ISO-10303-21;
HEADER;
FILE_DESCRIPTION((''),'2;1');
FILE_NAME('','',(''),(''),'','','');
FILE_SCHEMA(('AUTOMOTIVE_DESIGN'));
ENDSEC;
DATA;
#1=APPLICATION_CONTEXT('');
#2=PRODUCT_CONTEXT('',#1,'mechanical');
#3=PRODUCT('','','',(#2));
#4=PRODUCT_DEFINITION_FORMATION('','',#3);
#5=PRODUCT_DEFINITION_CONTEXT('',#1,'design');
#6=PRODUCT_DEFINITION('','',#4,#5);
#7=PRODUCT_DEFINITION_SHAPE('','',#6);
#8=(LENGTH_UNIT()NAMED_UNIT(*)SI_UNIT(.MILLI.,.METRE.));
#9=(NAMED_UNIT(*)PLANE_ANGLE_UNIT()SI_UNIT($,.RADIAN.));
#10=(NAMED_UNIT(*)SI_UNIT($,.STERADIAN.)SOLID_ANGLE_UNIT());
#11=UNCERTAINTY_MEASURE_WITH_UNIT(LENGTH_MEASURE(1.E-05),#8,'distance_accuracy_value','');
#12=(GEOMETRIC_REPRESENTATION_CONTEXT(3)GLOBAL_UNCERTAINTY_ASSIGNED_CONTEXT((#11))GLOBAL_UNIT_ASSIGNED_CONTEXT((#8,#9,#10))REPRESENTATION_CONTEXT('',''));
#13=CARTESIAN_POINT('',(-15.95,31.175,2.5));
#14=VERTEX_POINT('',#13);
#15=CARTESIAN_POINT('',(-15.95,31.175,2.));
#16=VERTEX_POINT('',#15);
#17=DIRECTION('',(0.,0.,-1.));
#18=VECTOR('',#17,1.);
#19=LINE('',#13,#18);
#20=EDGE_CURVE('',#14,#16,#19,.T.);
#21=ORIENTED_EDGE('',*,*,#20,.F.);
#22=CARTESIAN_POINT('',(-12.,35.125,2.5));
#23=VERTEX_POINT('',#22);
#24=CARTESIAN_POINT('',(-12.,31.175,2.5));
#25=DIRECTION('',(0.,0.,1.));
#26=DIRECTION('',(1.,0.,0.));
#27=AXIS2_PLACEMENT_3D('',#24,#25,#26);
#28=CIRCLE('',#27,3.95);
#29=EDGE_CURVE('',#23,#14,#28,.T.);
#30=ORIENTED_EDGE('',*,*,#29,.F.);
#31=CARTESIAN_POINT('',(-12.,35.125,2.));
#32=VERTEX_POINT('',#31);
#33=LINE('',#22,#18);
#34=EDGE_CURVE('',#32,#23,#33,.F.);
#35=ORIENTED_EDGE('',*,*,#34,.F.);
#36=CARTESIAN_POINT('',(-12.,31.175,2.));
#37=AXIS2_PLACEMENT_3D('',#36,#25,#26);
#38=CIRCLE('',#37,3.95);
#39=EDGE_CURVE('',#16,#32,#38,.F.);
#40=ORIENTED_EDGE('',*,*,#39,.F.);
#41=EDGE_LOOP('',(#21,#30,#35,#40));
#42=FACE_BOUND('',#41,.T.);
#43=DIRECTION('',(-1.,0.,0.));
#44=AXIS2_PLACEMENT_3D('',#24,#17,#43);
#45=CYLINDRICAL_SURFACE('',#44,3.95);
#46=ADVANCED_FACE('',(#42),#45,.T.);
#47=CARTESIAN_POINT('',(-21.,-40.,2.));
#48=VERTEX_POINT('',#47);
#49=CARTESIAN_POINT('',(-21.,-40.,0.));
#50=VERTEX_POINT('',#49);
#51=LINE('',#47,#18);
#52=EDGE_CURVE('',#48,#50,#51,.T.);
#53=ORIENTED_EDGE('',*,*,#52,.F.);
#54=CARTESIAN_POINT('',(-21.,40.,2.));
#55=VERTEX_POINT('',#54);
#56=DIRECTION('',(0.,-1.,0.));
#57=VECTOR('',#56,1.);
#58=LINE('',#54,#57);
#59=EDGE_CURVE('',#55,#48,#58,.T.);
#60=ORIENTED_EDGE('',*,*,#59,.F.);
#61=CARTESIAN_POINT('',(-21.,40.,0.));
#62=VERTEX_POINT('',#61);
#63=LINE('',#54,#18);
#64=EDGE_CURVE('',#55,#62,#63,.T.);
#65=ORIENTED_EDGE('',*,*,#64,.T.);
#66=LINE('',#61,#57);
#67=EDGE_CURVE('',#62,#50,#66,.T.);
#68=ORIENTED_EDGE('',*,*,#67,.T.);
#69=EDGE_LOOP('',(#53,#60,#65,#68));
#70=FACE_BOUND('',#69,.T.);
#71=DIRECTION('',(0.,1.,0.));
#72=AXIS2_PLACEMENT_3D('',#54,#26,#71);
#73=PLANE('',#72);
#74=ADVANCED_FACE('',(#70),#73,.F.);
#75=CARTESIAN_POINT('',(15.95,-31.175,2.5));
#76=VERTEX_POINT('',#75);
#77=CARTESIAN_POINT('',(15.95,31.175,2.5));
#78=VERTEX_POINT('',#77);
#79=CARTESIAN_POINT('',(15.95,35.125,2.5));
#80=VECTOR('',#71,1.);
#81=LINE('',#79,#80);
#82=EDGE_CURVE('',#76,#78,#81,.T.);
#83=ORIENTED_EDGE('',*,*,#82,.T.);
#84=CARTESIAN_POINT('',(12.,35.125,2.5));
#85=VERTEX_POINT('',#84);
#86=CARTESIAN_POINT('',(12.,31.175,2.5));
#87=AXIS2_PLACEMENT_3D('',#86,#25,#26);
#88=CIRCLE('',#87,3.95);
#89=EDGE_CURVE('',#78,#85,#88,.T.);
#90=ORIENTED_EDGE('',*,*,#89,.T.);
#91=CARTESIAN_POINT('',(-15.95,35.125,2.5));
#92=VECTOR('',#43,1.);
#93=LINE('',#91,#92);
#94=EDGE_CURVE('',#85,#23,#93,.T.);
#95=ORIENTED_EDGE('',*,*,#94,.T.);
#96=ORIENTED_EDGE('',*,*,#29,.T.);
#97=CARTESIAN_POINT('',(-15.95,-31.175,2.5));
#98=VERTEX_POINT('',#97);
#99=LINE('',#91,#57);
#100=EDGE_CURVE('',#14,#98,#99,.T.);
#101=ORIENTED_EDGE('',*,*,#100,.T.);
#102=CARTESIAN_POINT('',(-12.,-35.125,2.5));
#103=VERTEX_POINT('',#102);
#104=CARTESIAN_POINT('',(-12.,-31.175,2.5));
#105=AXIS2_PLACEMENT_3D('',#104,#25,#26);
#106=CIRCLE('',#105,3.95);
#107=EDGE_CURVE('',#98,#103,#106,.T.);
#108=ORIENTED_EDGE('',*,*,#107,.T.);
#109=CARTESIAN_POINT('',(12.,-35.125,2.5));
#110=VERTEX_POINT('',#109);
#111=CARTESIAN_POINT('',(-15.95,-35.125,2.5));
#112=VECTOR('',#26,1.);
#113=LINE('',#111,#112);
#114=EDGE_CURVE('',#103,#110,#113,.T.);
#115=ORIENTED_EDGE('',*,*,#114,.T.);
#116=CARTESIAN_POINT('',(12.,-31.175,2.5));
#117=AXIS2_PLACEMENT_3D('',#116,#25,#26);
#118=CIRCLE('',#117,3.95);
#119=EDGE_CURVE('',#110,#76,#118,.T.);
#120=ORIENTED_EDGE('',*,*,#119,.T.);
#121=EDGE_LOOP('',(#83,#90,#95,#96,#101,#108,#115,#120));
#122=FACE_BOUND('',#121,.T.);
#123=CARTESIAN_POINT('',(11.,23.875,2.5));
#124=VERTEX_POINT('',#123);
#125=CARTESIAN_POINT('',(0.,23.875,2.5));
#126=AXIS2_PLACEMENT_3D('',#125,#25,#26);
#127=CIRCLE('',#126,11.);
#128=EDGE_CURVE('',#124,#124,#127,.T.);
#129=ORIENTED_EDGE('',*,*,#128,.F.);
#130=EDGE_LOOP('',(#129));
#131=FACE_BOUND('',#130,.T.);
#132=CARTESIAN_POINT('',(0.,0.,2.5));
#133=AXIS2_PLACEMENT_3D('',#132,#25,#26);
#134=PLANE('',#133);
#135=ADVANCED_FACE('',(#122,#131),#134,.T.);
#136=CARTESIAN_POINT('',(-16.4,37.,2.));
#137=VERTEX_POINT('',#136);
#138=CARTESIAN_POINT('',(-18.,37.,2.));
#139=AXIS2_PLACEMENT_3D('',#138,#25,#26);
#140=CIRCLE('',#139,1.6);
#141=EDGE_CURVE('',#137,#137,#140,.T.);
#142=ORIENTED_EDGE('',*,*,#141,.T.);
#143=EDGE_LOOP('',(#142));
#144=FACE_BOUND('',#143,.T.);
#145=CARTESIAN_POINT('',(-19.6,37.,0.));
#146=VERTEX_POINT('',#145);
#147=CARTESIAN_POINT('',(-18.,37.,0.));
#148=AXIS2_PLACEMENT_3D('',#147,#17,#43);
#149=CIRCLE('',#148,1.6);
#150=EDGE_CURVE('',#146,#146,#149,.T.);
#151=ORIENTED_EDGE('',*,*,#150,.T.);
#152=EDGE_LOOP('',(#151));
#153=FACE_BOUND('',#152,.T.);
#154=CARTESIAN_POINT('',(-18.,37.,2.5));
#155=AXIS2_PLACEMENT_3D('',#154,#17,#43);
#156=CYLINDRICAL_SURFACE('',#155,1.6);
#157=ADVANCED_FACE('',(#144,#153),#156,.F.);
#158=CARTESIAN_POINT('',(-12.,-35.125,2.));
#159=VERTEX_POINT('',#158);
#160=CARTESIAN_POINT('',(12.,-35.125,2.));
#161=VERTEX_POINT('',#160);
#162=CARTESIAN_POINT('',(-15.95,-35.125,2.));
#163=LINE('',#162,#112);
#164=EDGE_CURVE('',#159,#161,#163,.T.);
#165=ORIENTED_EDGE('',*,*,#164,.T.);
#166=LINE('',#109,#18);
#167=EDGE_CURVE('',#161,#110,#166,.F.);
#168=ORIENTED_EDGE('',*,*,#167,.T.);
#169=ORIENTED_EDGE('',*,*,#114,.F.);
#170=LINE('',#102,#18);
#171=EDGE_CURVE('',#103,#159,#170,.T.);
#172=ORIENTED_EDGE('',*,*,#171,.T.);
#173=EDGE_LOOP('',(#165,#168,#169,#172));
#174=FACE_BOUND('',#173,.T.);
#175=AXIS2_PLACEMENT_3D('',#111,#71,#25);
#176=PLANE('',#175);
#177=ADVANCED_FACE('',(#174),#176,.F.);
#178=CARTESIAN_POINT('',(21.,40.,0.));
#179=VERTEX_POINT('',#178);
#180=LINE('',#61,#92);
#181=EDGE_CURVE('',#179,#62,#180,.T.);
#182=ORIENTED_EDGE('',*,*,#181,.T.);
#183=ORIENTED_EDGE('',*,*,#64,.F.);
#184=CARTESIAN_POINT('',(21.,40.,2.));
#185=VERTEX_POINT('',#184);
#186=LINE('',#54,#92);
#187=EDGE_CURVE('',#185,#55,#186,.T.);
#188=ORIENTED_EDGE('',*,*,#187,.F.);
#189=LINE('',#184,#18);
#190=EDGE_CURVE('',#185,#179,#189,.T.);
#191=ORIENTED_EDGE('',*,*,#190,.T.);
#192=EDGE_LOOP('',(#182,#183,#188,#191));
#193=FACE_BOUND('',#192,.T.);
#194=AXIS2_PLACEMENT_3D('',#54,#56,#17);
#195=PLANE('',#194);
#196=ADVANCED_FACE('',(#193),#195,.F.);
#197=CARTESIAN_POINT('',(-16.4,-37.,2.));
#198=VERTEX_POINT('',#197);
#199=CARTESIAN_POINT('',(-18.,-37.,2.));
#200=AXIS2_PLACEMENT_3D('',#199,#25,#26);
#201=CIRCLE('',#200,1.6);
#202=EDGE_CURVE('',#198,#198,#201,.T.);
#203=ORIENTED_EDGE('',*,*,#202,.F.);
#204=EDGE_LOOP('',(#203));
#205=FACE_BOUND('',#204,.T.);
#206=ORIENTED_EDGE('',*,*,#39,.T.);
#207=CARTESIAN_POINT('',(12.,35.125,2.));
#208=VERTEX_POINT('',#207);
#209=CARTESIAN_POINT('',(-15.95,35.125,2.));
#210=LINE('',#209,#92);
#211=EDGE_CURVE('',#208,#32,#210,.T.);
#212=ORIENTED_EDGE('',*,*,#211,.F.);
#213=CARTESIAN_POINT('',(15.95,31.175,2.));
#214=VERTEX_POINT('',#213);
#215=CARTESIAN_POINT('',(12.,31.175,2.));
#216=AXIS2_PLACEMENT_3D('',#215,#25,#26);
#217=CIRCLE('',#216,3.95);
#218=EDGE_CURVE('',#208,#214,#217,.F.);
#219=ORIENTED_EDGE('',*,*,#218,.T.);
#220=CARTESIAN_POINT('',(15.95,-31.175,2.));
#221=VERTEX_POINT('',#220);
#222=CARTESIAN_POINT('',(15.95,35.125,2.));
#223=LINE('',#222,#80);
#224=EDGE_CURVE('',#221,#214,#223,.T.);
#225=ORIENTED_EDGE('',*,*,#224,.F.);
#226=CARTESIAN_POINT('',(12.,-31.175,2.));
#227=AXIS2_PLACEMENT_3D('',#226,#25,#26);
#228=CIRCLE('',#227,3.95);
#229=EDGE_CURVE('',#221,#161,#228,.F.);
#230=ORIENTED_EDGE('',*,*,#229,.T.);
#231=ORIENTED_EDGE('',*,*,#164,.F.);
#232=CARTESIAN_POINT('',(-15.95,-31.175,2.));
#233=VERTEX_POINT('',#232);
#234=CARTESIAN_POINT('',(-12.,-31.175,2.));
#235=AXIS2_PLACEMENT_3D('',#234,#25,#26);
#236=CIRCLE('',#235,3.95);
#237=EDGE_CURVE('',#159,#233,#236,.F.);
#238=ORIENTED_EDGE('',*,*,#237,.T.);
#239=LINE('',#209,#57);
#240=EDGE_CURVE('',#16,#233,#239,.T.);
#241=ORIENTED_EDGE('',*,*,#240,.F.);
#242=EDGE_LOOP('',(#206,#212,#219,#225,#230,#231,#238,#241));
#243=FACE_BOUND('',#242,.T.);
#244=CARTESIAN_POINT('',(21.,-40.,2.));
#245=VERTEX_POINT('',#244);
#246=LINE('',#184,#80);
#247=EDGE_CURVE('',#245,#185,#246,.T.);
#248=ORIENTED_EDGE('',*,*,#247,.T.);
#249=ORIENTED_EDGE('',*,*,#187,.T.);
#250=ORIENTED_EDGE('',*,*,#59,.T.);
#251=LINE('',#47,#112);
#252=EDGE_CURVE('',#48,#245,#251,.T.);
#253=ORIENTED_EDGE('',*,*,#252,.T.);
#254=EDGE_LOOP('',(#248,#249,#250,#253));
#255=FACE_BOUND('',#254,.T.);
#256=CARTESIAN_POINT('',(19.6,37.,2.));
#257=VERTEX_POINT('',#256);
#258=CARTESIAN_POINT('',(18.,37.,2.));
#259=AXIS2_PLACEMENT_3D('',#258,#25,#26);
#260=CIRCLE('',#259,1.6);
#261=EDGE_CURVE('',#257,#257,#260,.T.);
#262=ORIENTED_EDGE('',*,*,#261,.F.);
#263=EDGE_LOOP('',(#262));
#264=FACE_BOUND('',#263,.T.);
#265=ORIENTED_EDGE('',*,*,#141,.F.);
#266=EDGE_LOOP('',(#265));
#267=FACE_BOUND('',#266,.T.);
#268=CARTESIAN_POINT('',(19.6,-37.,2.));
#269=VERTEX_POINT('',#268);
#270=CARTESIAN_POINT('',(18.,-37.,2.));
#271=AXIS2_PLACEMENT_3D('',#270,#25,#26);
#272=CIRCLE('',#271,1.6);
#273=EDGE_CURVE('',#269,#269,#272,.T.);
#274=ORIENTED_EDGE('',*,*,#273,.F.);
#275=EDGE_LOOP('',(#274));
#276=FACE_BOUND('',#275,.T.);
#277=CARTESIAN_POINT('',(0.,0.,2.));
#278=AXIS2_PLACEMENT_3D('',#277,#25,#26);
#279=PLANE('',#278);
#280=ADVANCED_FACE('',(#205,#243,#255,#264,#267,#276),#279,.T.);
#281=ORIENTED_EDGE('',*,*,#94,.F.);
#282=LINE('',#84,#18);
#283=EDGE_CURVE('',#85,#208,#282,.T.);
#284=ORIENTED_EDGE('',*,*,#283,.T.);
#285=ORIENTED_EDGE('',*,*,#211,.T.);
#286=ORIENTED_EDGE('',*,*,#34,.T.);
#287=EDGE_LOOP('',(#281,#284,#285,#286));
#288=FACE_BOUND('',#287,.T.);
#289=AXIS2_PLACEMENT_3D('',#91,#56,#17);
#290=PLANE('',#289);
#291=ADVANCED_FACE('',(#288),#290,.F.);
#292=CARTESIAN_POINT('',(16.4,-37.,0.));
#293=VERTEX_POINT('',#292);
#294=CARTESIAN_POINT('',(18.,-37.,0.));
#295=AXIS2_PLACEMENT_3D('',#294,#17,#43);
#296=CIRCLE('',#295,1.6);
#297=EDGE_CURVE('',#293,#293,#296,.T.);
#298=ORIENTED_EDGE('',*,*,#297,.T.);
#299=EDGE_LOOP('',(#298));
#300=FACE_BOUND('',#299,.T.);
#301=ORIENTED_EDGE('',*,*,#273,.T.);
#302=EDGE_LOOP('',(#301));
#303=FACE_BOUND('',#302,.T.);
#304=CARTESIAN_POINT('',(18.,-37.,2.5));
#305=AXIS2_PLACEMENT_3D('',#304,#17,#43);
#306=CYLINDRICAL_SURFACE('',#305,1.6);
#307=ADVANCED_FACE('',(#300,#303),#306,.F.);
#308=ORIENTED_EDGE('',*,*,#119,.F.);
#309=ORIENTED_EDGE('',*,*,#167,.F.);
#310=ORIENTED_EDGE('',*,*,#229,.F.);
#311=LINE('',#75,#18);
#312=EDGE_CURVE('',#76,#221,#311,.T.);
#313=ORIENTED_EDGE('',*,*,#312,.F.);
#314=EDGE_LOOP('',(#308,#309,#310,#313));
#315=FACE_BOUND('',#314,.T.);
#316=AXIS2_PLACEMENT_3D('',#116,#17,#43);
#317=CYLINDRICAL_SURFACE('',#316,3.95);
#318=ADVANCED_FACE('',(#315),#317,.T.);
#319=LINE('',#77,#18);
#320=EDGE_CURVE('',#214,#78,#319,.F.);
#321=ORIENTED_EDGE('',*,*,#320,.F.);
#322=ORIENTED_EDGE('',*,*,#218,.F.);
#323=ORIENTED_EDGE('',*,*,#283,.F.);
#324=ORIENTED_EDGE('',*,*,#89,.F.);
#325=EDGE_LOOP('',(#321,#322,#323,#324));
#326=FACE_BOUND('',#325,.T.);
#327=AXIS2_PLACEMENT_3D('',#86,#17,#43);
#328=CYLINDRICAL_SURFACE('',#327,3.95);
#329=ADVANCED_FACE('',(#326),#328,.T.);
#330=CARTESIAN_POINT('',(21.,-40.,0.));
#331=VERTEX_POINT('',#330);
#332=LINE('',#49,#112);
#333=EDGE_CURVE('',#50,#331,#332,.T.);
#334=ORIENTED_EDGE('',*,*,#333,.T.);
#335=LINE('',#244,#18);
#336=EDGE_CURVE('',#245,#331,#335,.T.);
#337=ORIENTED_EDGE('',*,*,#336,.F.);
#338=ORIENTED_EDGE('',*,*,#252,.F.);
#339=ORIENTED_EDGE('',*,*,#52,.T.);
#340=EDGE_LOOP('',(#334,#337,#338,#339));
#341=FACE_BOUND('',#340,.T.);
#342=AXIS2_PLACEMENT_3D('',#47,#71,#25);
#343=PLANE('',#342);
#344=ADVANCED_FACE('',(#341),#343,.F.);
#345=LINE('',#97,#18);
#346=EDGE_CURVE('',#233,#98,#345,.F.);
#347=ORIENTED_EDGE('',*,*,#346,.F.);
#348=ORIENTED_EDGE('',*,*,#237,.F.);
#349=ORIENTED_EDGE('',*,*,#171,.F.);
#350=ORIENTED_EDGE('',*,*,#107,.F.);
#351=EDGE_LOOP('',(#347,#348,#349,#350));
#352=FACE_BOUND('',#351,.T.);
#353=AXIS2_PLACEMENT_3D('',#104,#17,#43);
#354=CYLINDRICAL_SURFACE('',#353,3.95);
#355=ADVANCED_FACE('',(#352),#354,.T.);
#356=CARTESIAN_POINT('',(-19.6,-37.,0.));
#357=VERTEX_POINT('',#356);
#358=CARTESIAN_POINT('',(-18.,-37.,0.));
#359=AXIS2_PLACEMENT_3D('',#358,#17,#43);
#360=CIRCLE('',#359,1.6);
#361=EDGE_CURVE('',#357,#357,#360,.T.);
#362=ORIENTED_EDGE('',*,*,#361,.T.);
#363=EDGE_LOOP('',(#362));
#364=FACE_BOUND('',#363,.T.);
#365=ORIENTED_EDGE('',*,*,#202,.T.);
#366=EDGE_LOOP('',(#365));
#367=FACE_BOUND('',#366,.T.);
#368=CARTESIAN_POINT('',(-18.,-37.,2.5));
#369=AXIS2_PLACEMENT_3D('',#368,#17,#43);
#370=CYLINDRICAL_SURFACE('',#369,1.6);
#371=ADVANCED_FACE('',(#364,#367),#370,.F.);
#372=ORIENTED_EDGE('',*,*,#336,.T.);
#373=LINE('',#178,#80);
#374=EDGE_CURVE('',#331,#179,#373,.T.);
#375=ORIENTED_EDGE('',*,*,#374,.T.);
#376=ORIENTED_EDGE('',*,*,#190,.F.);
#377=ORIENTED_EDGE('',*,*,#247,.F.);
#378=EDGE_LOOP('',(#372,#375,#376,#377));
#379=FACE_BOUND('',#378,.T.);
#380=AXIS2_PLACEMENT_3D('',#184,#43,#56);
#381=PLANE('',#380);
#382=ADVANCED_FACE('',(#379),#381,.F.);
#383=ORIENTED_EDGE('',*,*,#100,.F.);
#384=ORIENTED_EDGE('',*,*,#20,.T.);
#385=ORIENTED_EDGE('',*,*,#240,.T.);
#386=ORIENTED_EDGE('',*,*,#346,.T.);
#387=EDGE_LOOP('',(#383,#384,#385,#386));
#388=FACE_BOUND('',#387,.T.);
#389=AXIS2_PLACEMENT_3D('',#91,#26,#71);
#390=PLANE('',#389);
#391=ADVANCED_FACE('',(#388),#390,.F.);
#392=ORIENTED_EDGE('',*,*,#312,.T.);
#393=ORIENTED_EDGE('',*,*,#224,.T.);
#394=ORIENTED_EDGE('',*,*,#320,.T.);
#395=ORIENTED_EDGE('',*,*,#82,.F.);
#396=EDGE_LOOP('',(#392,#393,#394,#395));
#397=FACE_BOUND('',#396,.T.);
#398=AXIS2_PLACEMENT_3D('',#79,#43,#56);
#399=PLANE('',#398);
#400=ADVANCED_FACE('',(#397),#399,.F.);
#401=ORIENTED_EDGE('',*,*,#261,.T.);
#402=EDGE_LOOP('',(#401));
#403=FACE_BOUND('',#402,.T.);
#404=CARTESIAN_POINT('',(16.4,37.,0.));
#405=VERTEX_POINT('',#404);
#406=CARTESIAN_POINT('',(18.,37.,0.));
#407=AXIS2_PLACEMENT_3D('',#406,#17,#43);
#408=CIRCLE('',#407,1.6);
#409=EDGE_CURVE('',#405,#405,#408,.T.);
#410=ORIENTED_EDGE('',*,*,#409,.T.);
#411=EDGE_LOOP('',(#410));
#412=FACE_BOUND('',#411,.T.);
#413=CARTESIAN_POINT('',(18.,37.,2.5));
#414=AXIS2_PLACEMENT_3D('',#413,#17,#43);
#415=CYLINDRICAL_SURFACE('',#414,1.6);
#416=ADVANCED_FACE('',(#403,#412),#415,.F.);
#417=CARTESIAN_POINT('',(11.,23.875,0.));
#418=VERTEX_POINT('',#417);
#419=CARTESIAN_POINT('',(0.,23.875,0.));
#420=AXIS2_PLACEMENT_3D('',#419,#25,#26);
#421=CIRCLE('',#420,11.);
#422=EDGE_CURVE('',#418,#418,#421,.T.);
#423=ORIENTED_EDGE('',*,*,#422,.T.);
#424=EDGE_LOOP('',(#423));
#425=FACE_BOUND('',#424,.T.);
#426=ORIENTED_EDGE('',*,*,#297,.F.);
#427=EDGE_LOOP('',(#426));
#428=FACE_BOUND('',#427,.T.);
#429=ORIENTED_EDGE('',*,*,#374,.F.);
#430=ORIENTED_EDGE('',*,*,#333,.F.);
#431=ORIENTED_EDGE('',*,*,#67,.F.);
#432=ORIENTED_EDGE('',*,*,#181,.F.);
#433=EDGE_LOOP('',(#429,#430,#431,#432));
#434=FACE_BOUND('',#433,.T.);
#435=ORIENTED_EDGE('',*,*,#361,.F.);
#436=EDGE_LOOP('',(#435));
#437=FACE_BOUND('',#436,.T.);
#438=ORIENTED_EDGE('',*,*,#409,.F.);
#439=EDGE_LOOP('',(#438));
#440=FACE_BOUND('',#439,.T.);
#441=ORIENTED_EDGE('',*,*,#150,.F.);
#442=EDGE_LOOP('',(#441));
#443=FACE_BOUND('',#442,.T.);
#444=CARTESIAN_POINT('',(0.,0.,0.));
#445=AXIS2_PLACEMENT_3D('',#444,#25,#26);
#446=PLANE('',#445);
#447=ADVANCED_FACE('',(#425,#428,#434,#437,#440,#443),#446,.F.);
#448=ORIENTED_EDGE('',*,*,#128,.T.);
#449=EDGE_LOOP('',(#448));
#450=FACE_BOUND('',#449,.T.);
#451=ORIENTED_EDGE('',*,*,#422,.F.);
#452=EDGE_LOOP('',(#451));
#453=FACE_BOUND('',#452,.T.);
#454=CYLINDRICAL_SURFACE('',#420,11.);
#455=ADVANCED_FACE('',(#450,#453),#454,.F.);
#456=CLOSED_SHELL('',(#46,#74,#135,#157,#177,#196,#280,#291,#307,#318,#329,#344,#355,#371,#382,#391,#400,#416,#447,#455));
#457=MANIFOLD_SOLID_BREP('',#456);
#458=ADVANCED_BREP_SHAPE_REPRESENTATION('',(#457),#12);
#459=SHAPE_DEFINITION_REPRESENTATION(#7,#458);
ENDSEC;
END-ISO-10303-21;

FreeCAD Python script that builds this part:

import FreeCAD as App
import Part
import Sketcher
from FreeCAD import Vector
Q = App.Units.Quantity


def edges_at(feature, points):
    """Names of the edges that pass closest to the given points."""
    edges = feature.Shape.Edges
    near = lambda p: min(range(len(edges)), key=lambda i: edges[i].distToShape(Part.Vertex(*p))[0])
    return sorted({f"Edge{near(p) + 1}" for p in points})

doc = App.newDocument("Part")
body = doc.addObject("PartDesign::Body", "Body")

sketch1 = doc.addObject("Sketcher::SketchObject", "Sketch")
body.addObject(sketch1)
sketch1.AttachmentSupport = (doc.XY_Plane, [""])
sketch1.MapMode = "FlatFace"
sketch1.addGeometry(Part.LineSegment(Vector(-21, 40, 0), Vector(-21, -40, 0)), False)
sketch1.addGeometry(Part.LineSegment(Vector(-21, -40, 0), Vector(21, -40, 0)), False)
sketch1.addGeometry(Part.LineSegment(Vector(21, -40, 0), Vector(21, 40, 0)), False)
sketch1.addGeometry(Part.LineSegment(Vector(21, 40, 0), Vector(-21, 40, 0)), False)
sketch1.addConstraint(Sketcher.Constraint("Coincident", 0, 2, 1, 1))
sketch1.addConstraint(Sketcher.Constraint("Coincident", 1, 2, 2, 1))
sketch1.addConstraint(Sketcher.Constraint("Coincident", 2, 2, 3, 1))
sketch1.addConstraint(Sketcher.Constraint("Coincident", 3, 2, 0, 1))
sketch1.addConstraint(Sketcher.Constraint("Vertical", 0))
sketch1.addConstraint(Sketcher.Constraint("Horizontal", 1))
sketch1.addConstraint(Sketcher.Constraint("Vertical", 2))
sketch1.addConstraint(Sketcher.Constraint("Horizontal", 3))
sketch1.addConstraint(Sketcher.Constraint("Symmetric", 0, 2, 2, 2, -1, 1))
sketch1.addConstraint(Sketcher.Constraint("DistanceX", 1, 1, 1, 2, Q("42 mm")))
sketch1.addConstraint(Sketcher.Constraint("DistanceY", 0, 2, 0, 1, Q("80 mm")))
pad1 = doc.addObject("PartDesign::Pad", "Pad")
body.addObject(pad1)
pad1.Profile = sketch1
pad1.Length = 2

sketch2 = doc.addObject("Sketcher::SketchObject", "Sketch001")
body.addObject(sketch2)
sketch2.AttachmentSupport = (doc.XY_Plane, [""])
sketch2.MapMode = "FlatFace"
sketch2.AttachmentOffset = App.Placement(Vector(0, 0, 2), App.Rotation())
sketch2.addGeometry(Part.LineSegment(Vector(-16, 35, 0), Vector(-16, -35, 0)), False)
sketch2.addGeometry(Part.LineSegment(Vector(-16, -35, 0), Vector(16, -35, 0)), False)
sketch2.addGeometry(Part.LineSegment(Vector(16, -35, 0), Vector(16, 35, 0)), False)
sketch2.addGeometry(Part.LineSegment(Vector(16, 35, 0), Vector(-16, 35, 0)), False)
sketch2.addConstraint(Sketcher.Constraint("Coincident", 0, 2, 1, 1))
sketch2.addConstraint(Sketcher.Constraint("Coincident", 1, 2, 2, 1))
sketch2.addConstraint(Sketcher.Constraint("Coincident", 2, 2, 3, 1))
sketch2.addConstraint(Sketcher.Constraint("Coincident", 3, 2, 0, 1))
sketch2.addConstraint(Sketcher.Constraint("Vertical", 0))
sketch2.addConstraint(Sketcher.Constraint("Horizontal", 1))
sketch2.addConstraint(Sketcher.Constraint("Vertical", 2))
sketch2.addConstraint(Sketcher.Constraint("Horizontal", 3))
sketch2.addConstraint(Sketcher.Constraint("Symmetric", 0, 2, 2, 2, -1, 1))
sketch2.addConstraint(Sketcher.Constraint("DistanceX", 1, 1, 1, 2, Q("31.9 mm")))
sketch2.addConstraint(Sketcher.Constraint("DistanceY", 0, 2, 0, 1, Q("70.25 mm")))
pad2 = doc.addObject("PartDesign::Pad", "Pad001")
body.addObject(pad2)
pad2.Profile = sketch2
pad2.Length = 0.5
doc.recompute()

fillet = doc.addObject("PartDesign::Fillet", "Fillet")
body.addObject(fillet)
fillet.Base = (pad2, edges_at(pad2, [
    (15.95, -35.125, 2.25),
    (15.95, 35.125, 2.25),
    (-15.95, 35.125, 2.25),
    (-15.95, -35.125, 2.25),
]))
fillet.Radius = 3.95

sketch3 = doc.addObject("Sketcher::SketchObject", "Sketch002")
body.addObject(sketch3)
sketch3.AttachmentSupport = (doc.XY_Plane, [""])
sketch3.MapMode = "FlatFace"
sketch3.AttachmentOffset = App.Placement(Vector(0, 0, 2.5), App.Rotation())
sketch3.addGeometry(Part.Circle(Vector(0, 24, 0), Vector(0, 0, 1), 11), False)
sketch3.addConstraint(Sketcher.Constraint("PointOnObject", 0, 3, -2))
sketch3.addConstraint(Sketcher.Constraint("Diameter", 0, Q("22 mm")))
sketch3.addConstraint(Sketcher.Constraint("DistanceY", -1, 1, 0, 3, Q("23.875 mm")))
pocket1 = doc.addObject("PartDesign::Pocket", "Pocket")
body.addObject(pocket1)
pocket1.Profile = sketch3
pocket1.Type = "ThroughAll"

sketch4 = doc.addObject("Sketcher::SketchObject", "Sketch003")
body.addObject(sketch4)
sketch4.AttachmentSupport = (doc.XY_Plane, [""])
sketch4.MapMode = "FlatFace"
sketch4.addGeometry(Part.Circle(Vector(-18, 37, 0), Vector(0, 0, 1), 1.6), False)
sketch4.addGeometry(Part.Circle(Vector(18, 37, 0), Vector(0, 0, 1), 1.6), False)
sketch4.addGeometry(Part.Circle(Vector(18, -37, 0), Vector(0, 0, 1), 1.6), False)
sketch4.addGeometry(Part.Circle(Vector(-18, -37, 0), Vector(0, 0, 1), 1.6), False)
sketch4.addConstraint(Sketcher.Constraint("Equal", 0, 1))
sketch4.addConstraint(Sketcher.Constraint("Equal", 1, 2))
sketch4.addConstraint(Sketcher.Constraint("Equal", 2, 3))
sketch4.addConstraint(Sketcher.Constraint("Symmetric", 0, 3, 2, 3, -1, 1))
sketch4.addConstraint(Sketcher.Constraint("Symmetric", 1, 3, 3, 3, -1, 1))
sketch4.addConstraint(Sketcher.Constraint("Symmetric", 0, 3, 1, 3, -2))
sketch4.addConstraint(Sketcher.Constraint("Diameter", 0, Q("3.2 mm")))
sketch4.addConstraint(Sketcher.Constraint("DistanceX", 0, 3, -1, 1, Q("18 mm")))
sketch4.addConstraint(Sketcher.Constraint("DistanceY", -1, 1, 0, 3, Q("37 mm")))
pocket2 = doc.addObject("PartDesign::Pocket", "Pocket001")
body.addObject(pocket2)
pocket2.Profile = sketch4
pocket2.Type = "ThroughAll"
pocket2.Reversed = True

doc.recompute()
